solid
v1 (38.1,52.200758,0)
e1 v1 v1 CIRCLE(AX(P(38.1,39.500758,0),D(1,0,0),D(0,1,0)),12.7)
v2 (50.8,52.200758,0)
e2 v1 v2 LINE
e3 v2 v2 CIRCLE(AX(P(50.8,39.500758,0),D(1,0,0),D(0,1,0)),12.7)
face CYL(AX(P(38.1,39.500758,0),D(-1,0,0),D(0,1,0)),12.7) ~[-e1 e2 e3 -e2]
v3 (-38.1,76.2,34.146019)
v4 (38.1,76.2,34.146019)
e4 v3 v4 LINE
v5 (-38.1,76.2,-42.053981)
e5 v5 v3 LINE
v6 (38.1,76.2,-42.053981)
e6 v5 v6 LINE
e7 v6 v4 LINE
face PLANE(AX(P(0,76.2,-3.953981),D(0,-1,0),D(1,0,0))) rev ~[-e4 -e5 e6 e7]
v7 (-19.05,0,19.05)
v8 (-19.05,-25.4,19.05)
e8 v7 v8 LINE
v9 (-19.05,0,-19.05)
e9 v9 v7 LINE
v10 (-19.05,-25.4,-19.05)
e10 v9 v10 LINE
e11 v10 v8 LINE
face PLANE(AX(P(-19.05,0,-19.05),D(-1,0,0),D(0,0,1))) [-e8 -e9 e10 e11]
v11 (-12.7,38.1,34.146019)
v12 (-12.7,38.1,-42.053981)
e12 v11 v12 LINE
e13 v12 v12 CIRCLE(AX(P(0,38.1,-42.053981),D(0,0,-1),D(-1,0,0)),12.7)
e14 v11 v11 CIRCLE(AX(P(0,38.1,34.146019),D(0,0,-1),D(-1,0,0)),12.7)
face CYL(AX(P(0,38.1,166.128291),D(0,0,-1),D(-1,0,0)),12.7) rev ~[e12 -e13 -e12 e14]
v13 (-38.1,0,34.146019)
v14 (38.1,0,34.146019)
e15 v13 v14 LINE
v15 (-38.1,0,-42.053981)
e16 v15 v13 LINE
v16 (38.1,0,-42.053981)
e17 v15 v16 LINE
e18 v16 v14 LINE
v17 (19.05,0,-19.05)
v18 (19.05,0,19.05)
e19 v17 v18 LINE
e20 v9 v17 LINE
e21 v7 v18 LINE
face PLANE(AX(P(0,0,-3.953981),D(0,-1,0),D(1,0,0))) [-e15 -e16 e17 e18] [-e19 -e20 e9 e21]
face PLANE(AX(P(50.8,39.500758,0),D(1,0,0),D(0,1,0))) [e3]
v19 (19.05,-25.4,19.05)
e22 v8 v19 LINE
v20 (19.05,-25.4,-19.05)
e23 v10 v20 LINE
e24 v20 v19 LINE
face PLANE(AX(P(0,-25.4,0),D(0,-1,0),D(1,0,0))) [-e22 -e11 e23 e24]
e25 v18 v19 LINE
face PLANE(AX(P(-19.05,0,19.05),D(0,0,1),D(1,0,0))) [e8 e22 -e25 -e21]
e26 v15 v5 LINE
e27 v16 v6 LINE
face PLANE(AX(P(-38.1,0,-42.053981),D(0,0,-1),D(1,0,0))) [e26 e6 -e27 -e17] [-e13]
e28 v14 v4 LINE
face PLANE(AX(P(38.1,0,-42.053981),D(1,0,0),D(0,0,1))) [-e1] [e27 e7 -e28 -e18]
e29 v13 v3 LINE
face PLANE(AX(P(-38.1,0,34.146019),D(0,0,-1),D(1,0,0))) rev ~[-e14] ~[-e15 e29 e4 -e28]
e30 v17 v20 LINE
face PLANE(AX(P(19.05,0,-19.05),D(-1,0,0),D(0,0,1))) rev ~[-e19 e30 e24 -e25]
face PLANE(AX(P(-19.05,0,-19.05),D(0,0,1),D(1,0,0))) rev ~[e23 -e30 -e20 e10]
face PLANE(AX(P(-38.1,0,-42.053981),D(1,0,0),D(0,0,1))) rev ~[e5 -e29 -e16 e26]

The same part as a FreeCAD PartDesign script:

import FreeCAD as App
import Part
import Sketcher

V = App.Vector
Q = App.Units.Quantity


def add_polygon(sketch, points):
    """Adds a closed chain of lines whose ends are joined by coincident constraints."""
    first, n = sketch.GeometryCount, len(points)
    for a, b in zip(points, points[1:] + points[:1]):
        sketch.addGeometry(Part.LineSegment(App.Vector(*a, 0), App.Vector(*b, 0)), False)
    for i in range(n):
        sketch.addConstraint(Sketcher.Constraint("Coincident", first + i, 2, first + (i + 1) % n, 1))

doc = App.newDocument("Part")
body = doc.addObject("PartDesign::Body", "Body")

# Sketch on XZ plane
sketch1 = body.newObject("Sketcher::SketchObject", "Sketch")
sketch1.AttachmentSupport = (doc.getObject("XZ_Plane"), [""])
sketch1.MapMode = "FlatFace"
add_polygon(sketch1, [(-38.1, 34.146019), (-38.1, -42.053981), (38.1, -42.053981), (38.1, 34.146019)])  # lines 0-3
sketch1.addConstraint([
    Sketcher.Constraint("Vertical", 0),
    Sketcher.Constraint("Horizontal", 1),
    Sketcher.Constraint("Vertical", 2),
    Sketcher.Constraint("Horizontal", 3),
    Sketcher.Constraint("Equal", 3, 0),
    Sketcher.Constraint("DistanceX", 1, 1, 1, 2, Q("3 in")),
    Sketcher.Constraint("DistanceX", 0, 2, -1, 1, Q("1.5 in")),
    Sketcher.Constraint("DistanceY", 0, 2, -1, 1, 42.053981),
])
pad1 = body.newObject("PartDesign::Pad", "Pad")
pad1.Profile = sketch1
pad1.Length = Q("3 in")
pad1.Reversed = True

# Sketch on XY plane
sketch2 = body.newObject("Sketcher::SketchObject", "Sketch001")
sketch2.AttachmentSupport = (doc.getObject("XY_Plane"), [""])
sketch2.MapMode = "FlatFace"
sketch2.AttachmentOffset = App.Placement(V(0, 0, 34.146019), App.Rotation())
sketch2.addGeometry(Part.Circle(V(0, 38.1, 0), V(0, 0, 1), 12.7), False)
sketch2.addConstraint([
    Sketcher.Constraint("PointOnObject", 0, 3, -2),
    Sketcher.Constraint("Diameter", 0, Q("1 in")),
    Sketcher.Constraint("DistanceY", -1, 1, 0, 3, Q("1.5 in")),
])
doc.recompute()
hole = body.newObject("PartDesign::Hole", "Hole")
hole.Profile = sketch2
hole.ThreadType = "None"
hole.Diameter = Q("1 in")
hole.DepthType = "ThroughAll"

# Sketch on XZ plane
sketch3 = body.newObject("Sketcher::SketchObject", "Sketch002")
sketch3.AttachmentSupport = (doc.getObject("XZ_Plane"), [""])
sketch3.MapMode = "FlatFace"
add_polygon(sketch3, [(-19.05, 19.05), (-19.05, -19.05), (19.05, -19.05), (19.05, 19.05)])  # lines 0-3
sketch3.addConstraint([
    Sketcher.Constraint("Vertical", 0),
    Sketcher.Constraint("Horizontal", 1),
    Sketcher.Constraint("Vertical", 2),
    Sketcher.Constraint("Horizontal", 3),
    Sketcher.Constraint("Symmetric", 0, 2, 2, 2, -1, 1),
    Sketcher.Constraint("Equal", 3, 0),
    Sketcher.Constraint("DistanceX", 1, 1, 1, 2, Q("1.5 in")),
])
pad2 = body.newObject("PartDesign::Pad", "Pad001")
pad2.Profile = sketch3
pad2.Length = Q("1 in")

# Sketch on YZ plane
sketch4 = body.newObject("Sketcher::SketchObject", "Sketch003")
sketch4.AttachmentSupport = (doc.getObject("YZ_Plane"), [""])
sketch4.MapMode = "FlatFace"
sketch4.AttachmentOffset = App.Placement(V(0, 0, 1.5 * 25.4), App.Rotation())
sketch4.addGeometry(Part.Circle(V(39.500758, 0, 0), V(0, 0, 1), 12.7), False)
sketch4.addConstraint([
    Sketcher.Constraint("PointOnObject", 0, 3, -1),
    Sketcher.Constraint("Diameter", 0, Q("1 in")),
    Sketcher.Constraint("DistanceX", -1, 1, 0, 3, 39.500758),
])
pad3 = body.newObject("PartDesign::Pad", "Pad002")
pad3.Profile = sketch4
pad3.Length = Q("0.5 in")

doc.recompute()
